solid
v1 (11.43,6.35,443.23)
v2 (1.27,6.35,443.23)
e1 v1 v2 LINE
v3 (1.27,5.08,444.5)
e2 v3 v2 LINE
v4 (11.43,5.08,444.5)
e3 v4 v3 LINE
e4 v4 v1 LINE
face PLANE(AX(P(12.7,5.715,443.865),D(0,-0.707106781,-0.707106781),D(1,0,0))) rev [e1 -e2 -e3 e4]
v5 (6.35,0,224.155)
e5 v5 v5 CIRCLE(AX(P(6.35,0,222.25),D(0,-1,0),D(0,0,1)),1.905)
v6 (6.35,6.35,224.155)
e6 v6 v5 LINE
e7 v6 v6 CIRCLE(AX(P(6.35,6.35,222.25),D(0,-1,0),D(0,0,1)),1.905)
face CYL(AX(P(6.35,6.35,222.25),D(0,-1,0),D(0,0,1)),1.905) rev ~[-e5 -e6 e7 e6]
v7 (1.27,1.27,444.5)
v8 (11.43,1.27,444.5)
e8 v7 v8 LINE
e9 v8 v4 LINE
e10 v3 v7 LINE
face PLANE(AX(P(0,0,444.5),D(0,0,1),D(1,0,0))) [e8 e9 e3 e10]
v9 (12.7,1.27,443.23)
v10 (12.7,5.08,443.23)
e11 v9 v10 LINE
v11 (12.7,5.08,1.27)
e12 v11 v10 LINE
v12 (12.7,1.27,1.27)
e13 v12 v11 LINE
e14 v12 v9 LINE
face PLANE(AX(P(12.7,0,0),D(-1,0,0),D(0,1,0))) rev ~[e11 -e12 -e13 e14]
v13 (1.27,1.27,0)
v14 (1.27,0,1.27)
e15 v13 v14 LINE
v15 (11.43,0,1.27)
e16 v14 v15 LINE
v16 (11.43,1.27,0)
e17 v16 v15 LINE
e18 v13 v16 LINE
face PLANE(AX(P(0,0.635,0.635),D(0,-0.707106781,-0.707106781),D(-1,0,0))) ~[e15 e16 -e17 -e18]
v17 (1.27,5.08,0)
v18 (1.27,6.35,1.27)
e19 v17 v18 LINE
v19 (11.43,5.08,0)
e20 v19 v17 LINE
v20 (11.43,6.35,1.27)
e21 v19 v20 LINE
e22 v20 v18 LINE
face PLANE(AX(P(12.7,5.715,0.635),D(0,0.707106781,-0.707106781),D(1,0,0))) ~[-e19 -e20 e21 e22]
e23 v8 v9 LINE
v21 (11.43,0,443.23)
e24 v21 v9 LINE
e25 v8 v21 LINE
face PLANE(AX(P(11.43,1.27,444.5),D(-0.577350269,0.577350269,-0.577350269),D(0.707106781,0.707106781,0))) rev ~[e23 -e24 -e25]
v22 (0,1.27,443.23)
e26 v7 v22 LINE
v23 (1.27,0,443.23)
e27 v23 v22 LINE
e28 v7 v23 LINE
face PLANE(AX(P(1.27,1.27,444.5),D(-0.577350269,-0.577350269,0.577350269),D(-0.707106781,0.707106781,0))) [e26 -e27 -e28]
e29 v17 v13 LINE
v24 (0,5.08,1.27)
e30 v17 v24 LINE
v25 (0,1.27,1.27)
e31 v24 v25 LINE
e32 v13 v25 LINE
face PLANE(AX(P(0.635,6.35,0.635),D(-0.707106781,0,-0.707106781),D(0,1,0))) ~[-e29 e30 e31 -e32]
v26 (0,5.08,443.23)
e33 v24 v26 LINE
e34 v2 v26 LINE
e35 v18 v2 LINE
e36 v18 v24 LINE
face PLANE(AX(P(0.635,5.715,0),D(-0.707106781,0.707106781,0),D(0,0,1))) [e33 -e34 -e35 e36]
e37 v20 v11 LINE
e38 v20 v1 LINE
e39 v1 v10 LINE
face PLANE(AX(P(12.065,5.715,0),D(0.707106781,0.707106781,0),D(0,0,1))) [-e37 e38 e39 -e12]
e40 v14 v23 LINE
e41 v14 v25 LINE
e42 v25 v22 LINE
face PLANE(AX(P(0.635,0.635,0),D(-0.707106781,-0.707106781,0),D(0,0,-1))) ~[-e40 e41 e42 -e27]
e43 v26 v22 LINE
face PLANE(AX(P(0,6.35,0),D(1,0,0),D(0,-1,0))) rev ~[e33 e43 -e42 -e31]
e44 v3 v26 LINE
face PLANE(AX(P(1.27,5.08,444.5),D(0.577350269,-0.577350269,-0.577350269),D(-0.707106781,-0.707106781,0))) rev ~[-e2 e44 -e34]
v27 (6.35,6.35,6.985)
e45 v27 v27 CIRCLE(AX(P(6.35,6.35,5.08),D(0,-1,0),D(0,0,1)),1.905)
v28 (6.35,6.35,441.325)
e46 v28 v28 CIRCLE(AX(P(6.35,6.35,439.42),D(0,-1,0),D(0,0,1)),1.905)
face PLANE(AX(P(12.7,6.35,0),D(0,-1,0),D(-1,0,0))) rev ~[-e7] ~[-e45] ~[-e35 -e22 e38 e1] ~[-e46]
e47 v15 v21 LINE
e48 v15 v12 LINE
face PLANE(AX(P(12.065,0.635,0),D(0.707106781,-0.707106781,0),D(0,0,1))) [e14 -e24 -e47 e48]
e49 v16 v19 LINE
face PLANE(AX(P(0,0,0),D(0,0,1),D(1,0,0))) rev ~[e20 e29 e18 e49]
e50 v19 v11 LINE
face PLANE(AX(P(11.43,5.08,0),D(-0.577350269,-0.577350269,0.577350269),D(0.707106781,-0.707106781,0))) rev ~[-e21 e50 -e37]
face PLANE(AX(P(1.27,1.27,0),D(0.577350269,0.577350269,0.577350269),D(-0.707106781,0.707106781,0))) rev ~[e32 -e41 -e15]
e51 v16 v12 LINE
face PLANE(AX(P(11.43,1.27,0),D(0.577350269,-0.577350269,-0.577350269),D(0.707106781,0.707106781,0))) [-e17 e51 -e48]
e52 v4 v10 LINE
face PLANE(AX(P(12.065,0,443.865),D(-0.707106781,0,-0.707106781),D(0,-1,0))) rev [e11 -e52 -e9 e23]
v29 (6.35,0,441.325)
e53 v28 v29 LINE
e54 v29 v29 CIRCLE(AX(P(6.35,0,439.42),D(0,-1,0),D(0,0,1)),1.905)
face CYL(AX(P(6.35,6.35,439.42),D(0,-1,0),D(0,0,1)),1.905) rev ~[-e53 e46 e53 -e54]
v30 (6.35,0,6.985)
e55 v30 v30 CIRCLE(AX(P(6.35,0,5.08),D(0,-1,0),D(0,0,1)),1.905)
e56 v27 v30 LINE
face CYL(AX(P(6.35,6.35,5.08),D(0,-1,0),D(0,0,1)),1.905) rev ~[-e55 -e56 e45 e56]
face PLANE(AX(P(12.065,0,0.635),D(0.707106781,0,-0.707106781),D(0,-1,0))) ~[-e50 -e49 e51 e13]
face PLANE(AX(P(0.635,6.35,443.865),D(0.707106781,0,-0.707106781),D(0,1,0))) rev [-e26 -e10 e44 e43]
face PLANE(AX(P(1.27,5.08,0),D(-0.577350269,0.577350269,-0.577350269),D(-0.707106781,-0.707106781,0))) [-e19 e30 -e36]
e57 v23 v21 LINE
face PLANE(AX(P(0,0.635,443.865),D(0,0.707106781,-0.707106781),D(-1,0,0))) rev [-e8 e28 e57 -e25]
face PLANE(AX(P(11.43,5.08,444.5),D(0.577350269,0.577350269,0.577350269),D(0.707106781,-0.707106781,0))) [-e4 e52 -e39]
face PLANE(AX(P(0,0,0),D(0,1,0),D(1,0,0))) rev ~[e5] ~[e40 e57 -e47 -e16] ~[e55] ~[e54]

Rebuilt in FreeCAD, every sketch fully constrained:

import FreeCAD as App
import Part
import Sketcher
Q = App.Units.Quantity

doc = App.newDocument("Part")
body = doc.addObject("PartDesign::Body", "Body")

# Sketch on XY plane
sketch1 = doc.addObject("Sketcher::SketchObject", "Sketch")
body.addObject(sketch1)
sketch1.AttachmentSupport = (doc.XY_Plane, [""])
sketch1.MapMode = "FlatFace"
sketch1.addGeometry(Part.LineSegment(App.Vector(0, 6, 0), App.Vector(0, 0, 0)), False)
sketch1.addGeometry(Part.LineSegment(App.Vector(0, 0, 0), App.Vector(13, 0, 0)), False)
sketch1.addGeometry(Part.LineSegment(App.Vector(13, 0, 0), App.Vector(13, 6, 0)), False)
sketch1.addGeometry(Part.LineSegment(App.Vector(13, 6, 0), App.Vector(0, 6, 0)), False)
sketch1.addConstraint(Sketcher.Constraint("Coincident", 0, 2, 1, 1))
sketch1.addConstraint(Sketcher.Constraint("Coincident", 1, 2, 2, 1))
sketch1.addConstraint(Sketcher.Constraint("Coincident", 2, 2, 3, 1))
sketch1.addConstraint(Sketcher.Constraint("Coincident", 3, 2, 0, 1))
sketch1.addConstraint(Sketcher.Constraint("Vertical", 0))
sketch1.addConstraint(Sketcher.Constraint("Horizontal", 1))
sketch1.addConstraint(Sketcher.Constraint("Vertical", 2))
sketch1.addConstraint(Sketcher.Constraint("Horizontal", 3))
sketch1.addConstraint(Sketcher.Constraint("Coincident", 0, 2, -1, 1))
sketch1.addConstraint(Sketcher.Constraint("DistanceX", 1, 1, 1, 2, Q("0.5 in")))
sketch1.addConstraint(Sketcher.Constraint("DistanceY", 0, 2, 0, 1, Q("0.25 in")))
pad1 = doc.addObject("PartDesign::Pad", "Pad")
body.addObject(pad1)
pad1.Profile = sketch1
pad1.Length = Q("17.5 in")
doc.recompute()

chamfer = doc.addObject("PartDesign::Chamfer", "Chamfer")
body.addObject(chamfer)
chamfer.Base = (pad1, ["Edge1"])
chamfer.UseAllEdges = True
chamfer.Size = Q("0.05 in")

# Sketch on XZ plane
sketch2 = doc.addObject("Sketcher::SketchObject", "Sketch001")
body.addObject(sketch2)
sketch2.AttachmentSupport = (doc.XZ_Plane, [""])
sketch2.MapMode = "FlatFace"
sketch2.AttachmentOffset = App.Placement(App.Vector(0, 0, -0.25 * 25.4), App.Rotation())
sketch2.addGeometry(Part.Circle(App.Vector(6.3, 5.1, 0), App.Vector(0, 0, 1), 1.9), False)
sketch2.addGeometry(Part.Circle(App.Vector(6.3, 222.2, 0), App.Vector(0, 0, 1), 1.9), False)
sketch2.addGeometry(Part.Circle(App.Vector(6.3, 439.4, 0), App.Vector(0, 0, 1), 1.9), False)
sketch2.addConstraint(Sketcher.Constraint("Equal", 0, 1))
sketch2.addConstraint(Sketcher.Constraint("Equal", 1, 2))
sketch2.addConstraint(Sketcher.Constraint("Vertical", 0, 3, 1, 3))
sketch2.addConstraint(Sketcher.Constraint("Vertical", 1, 3, 2, 3))
sketch2.addConstraint(Sketcher.Constraint("Diameter", 0, Q("0.15 in")))
sketch2.addConstraint(Sketcher.Constraint("DistanceY", -1, 1, 0, 3, Q("0.2 in")))
sketch2.addConstraint(Sketcher.Constraint("DistanceY", -1, 1, 2, 3, Q("17.3 in")))
sketch2.addConstraint(Sketcher.Constraint("DistanceX", -1, 1, 0, 3, Q("0.25 in")))
sketch2.addConstraint(Sketcher.Constraint("DistanceY", -1, 1, 1, 3, Q("8.75 in")))
doc.recompute()
hole = doc.addObject("PartDesign::Hole", "Hole")
body.addObject(hole)
hole.Profile = sketch2
hole.ThreadType = "None"
hole.Diameter = Q("0.15 in")
hole.DepthType = "ThroughAll"
hole.Reversed = True

doc.recompute()
